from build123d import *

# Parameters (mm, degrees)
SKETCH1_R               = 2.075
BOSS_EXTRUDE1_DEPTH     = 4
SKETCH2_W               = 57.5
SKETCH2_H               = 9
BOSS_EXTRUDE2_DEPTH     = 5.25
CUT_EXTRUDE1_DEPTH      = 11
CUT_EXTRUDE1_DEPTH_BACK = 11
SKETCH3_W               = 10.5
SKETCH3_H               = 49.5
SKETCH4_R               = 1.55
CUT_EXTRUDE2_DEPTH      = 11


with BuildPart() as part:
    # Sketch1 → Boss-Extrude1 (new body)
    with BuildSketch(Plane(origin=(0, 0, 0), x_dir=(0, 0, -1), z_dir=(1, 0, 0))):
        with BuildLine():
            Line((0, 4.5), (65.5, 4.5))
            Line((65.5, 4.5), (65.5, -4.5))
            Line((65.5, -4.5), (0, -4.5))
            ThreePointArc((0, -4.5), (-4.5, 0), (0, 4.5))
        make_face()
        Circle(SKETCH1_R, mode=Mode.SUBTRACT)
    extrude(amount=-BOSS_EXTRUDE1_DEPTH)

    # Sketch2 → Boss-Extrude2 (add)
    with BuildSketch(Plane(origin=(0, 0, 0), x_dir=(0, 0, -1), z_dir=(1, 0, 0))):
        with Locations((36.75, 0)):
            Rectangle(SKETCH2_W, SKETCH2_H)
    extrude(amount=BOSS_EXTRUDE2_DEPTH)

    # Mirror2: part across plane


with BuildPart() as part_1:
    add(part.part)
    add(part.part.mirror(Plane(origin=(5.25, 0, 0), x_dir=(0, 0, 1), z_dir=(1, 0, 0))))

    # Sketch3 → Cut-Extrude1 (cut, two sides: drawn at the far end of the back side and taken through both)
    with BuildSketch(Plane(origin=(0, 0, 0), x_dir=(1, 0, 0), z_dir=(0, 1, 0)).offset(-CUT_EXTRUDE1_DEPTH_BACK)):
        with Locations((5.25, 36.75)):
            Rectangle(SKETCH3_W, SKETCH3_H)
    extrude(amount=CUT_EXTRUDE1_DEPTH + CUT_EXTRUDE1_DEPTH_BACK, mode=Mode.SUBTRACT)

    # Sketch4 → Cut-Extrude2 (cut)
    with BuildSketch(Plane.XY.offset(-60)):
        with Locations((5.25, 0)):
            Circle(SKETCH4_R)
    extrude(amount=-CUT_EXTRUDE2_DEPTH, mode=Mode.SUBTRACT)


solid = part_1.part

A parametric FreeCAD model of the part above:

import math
import FreeCAD as App
import Part
import Sketcher
from FreeCAD import Vector

doc = App.newDocument("Part")
body = doc.addObject("PartDesign::Body", "Body")

# Sketch on YZ plane
sketch1 = body.newObject("Sketcher::SketchObject", "Sketch")
sketch1.AttachmentSupport = (doc.getObject("YZ_Plane"), [""])
sketch1.MapMode = "FlatFace"
sketch1.addGeometry(Part.LineSegment(Vector(4.5, -65.5, 0), Vector(4.5, 0, 0)), False)
sketch1.addGeometry(Part.ArcOfCircle(Part.Circle(Vector(0, 0, 0), Vector(0, 0, 1), 4.5), math.radians(0), math.radians(180)), False)
sketch1.addGeometry(Part.LineSegment(Vector(-4.5, 0, 0), Vector(-4.5, -65.5, 0)), False)
sketch1.addGeometry(Part.LineSegment(Vector(-4.5, -65.5, 0), Vector(4.5, -65.5, 0)), False)
sketch1.addGeometry(Part.Circle(Vector(0, 0, 0), Vector(0, 0, 1), 2.1), False)
sketch1.addConstraint(Sketcher.Constraint("Tangent", 0, 2, 1, 1))
sketch1.addConstraint(Sketcher.Constraint("Tangent", 1, 2, 2, 1))
sketch1.addConstraint(Sketcher.Constraint("Coincident", 2, 2, 3, 1))
sketch1.addConstraint(Sketcher.Constraint("Coincident", 3, 2, 0, 1))
sketch1.addConstraint(Sketcher.Constraint("Vertical", 0))
sketch1.addConstraint(Sketcher.Constraint("Vertical", 2))
sketch1.addConstraint(Sketcher.Constraint("Horizontal", 3))
sketch1.addConstraint(Sketcher.Constraint("Coincident", 1, 3, -1, 1))
sketch1.addConstraint(Sketcher.Constraint("Coincident", 4, 3, -1, 1))
sketch1.addConstraint(Sketcher.Constraint("Radius", 1, 4.5))
sketch1.addConstraint(Sketcher.Constraint("Diameter", 4, 4.15))
sketch1.addConstraint(Sketcher.Constraint("DistanceY", 0, 1, 0, 2, 65.5))
pad1 = body.newObject("PartDesign::Pad", "Pad")
pad1.Profile = sketch1
pad1.Length = 4
pad1.Reversed = True

# Sketch on YZ plane
sketch2 = body.newObject("Sketcher::SketchObject", "Sketch001")
sketch2.AttachmentSupport = (doc.getObject("YZ_Plane"), [""])
sketch2.MapMode = "FlatFace"
sketch2.addGeometry(Part.LineSegment(Vector(4, -8, 0), Vector(-4, -8, 0)), False)
sketch2.addGeometry(Part.LineSegment(Vector(-4, -8, 0), Vector(-4, -66, 0)), False)
sketch2.addGeometry(Part.LineSegment(Vector(-4, -66, 0), Vector(4, -66, 0)), False)
sketch2.addGeometry(Part.LineSegment(Vector(4, -66, 0), Vector(4, -8, 0)), False)
sketch2.addConstraint(Sketcher.Constraint("Coincident", 0, 2, 1, 1))
sketch2.addConstraint(Sketcher.Constraint("Coincident", 1, 2, 2, 1))
sketch2.addConstraint(Sketcher.Constraint("Coincident", 2, 2, 3, 1))
sketch2.addConstraint(Sketcher.Constraint("Coincident", 3, 2, 0, 1))
sketch2.addConstraint(Sketcher.Constraint("Horizontal", 0))
sketch2.addConstraint(Sketcher.Constraint("Vertical", 1))
sketch2.addConstraint(Sketcher.Constraint("Horizontal", 2))
sketch2.addConstraint(Sketcher.Constraint("Vertical", 3))
sketch2.addConstraint(Sketcher.Constraint("DistanceX", 0, 2, 0, 1, 9.0))
sketch2.addConstraint(Sketcher.Constraint("DistanceY", 1, 2, 1, 1, 57.5))
sketch2.addConstraint(Sketcher.Constraint("DistanceY", 0, 2, -1, 1, 8.0))
sketch2.addConstraint(Sketcher.Constraint("DistanceX", 0, 2, -1, 1, 4.5))
pad2 = body.newObject("PartDesign::Pad", "Pad001")
pad2.Profile = sketch2
pad2.Length = 5.25
body2 = doc.addObject("PartDesign::Body", "Body001")
doc.recompute()

body2.BaseFeature = body
doc.recompute()

mirroring = doc.addObject("Part::Mirroring", "Mirroring")
mirroring.Source = body
mirroring.Base = Vector(5.25, 0, 0)
mirroring.Normal = Vector(1, 0, 0)
body3 = doc.addObject("PartDesign::Body", "Body002")
body3.BaseFeature = mirroring
boolean = body2.newObject("PartDesign::Boolean", "Boolean")
boolean.Type = "Fuse"
boolean.addObjects([body3])
doc.recompute()

# Sketch on XZ plane
sketch3 = body2.newObject("Sketcher::SketchObject", "Sketch002")
sketch3.AttachmentSupport = (doc.getObject("XZ_Plane001"), [""])
sketch3.MapMode = "FlatFace"
sketch3.addGeometry(Part.LineSegment(Vector(0, -62, 0), Vector(0, -12, 0)), False)
sketch3.addGeometry(Part.LineSegment(Vector(0, -12, 0), Vector(10, -12, 0)), False)
sketch3.addGeometry(Part.LineSegment(Vector(10, -12, 0), Vector(10, -62, 0)), False)
sketch3.addGeometry(Part.LineSegment(Vector(10, -62, 0), Vector(0, -62, 0)), False)
sketch3.addConstraint(Sketcher.Constraint("Coincident", 0, 2, 1, 1))
sketch3.addConstraint(Sketcher.Constraint("Coincident", 1, 2, 2, 1))
sketch3.addConstraint(Sketcher.Constraint("Coincident", 2, 2, 3, 1))
sketch3.addConstraint(Sketcher.Constraint("Coincident", 3, 2, 0, 1))
sketch3.addConstraint(Sketcher.Constraint("Vertical", 0))
sketch3.addConstraint(Sketcher.Constraint("Horizontal", 1))
sketch3.addConstraint(Sketcher.Constraint("Vertical", 2))
sketch3.addConstraint(Sketcher.Constraint("Horizontal", 3))
sketch3.addConstraint(Sketcher.Constraint("PointOnObject", 0, 2, -2))
sketch3.addConstraint(Sketcher.Constraint("DistanceX", 1, 1, 1, 2, 10.5))
sketch3.addConstraint(Sketcher.Constraint("DistanceY", 0, 1, 0, 2, 49.5))
sketch3.addConstraint(Sketcher.Constraint("DistanceY", 0, 2, -1, 1, 12.0))
pocket1 = body2.newObject("PartDesign::Pocket", "Pocket")
pocket1.Profile = sketch3
pocket1.Type = "ThroughAll"
pocket1.Midplane = True

# Sketch on XY plane
sketch4 = body2.newObject("Sketcher::SketchObject", "Sketch003")
sketch4.AttachmentSupport = (doc.getObject("XY_Plane001"), [""])
sketch4.MapMode = "FlatFace"
sketch4.AttachmentOffset = App.Placement(Vector(0, 0, -60), App.Rotation())
sketch4.addGeometry(Part.Circle(Vector(5.2, 0, 0), Vector(0, 0, 1), 1.6), False)
sketch4.addConstraint(Sketcher.Constraint("PointOnObject", 0, 3, -1))
sketch4.addConstraint(Sketcher.Constraint("Diameter", 0, 3.1))
sketch4.addConstraint(Sketcher.Constraint("DistanceX", -1, 1, 0, 3, 5.25))
pocket2 = body2.newObject("PartDesign::Pocket", "Pocket001")
pocket2.Profile = sketch4
pocket2.Length = 11
mirroring.Visibility = False

doc.recompute()
